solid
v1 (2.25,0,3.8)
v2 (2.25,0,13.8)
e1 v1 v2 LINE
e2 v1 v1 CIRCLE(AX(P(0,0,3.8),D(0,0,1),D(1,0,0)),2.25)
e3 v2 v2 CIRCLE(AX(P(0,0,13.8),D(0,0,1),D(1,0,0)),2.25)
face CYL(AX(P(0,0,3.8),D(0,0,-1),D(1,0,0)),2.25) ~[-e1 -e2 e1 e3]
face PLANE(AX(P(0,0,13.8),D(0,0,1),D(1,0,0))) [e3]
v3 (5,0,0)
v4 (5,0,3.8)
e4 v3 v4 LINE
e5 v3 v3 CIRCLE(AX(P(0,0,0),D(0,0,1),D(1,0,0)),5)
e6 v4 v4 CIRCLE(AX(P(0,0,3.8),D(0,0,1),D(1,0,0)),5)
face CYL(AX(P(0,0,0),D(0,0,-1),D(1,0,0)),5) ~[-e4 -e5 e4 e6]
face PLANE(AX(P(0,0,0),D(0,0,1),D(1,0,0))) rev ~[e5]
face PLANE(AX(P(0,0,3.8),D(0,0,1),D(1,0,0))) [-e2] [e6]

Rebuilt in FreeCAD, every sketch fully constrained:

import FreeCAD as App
import Part
import Sketcher

doc = App.newDocument("Part")
body = doc.addObject("PartDesign::Body", "Body")

# Sketch on XY plane
sketch1 = doc.addObject("Sketcher::SketchObject", "Sketch")
body.addObject(sketch1)
sketch1.AttachmentSupport = (doc.XY_Plane, [""])
sketch1.MapMode = "FlatFace"
sketch1.addGeometry(Part.Circle(App.Vector(0, 0, 0), App.Vector(0, 0, 1), 5), False)
sketch1.addConstraint(Sketcher.Constraint("Coincident", 0, 3, -1, 1))
sketch1.addConstraint(Sketcher.Constraint("Diameter", 0, 10.0))
pad1 = doc.addObject("PartDesign::Pad", "Pad")
body.addObject(pad1)
pad1.Profile = sketch1
pad1.Length = 3.8

# Sketch on XY plane
sketch2 = doc.addObject("Sketcher::SketchObject", "Sketch001")
body.addObject(sketch2)
sketch2.AttachmentSupport = (doc.XY_Plane, [""])
sketch2.MapMode = "FlatFace"
sketch2.AttachmentOffset = App.Placement(App.Vector(0, 0, 3.8), App.Rotation())
sketch2.addGeometry(Part.Circle(App.Vector(0, 0, 0), App.Vector(0, 0, 1), 2.2), False)
sketch2.addConstraint(Sketcher.Constraint("Coincident", 0, 3, -1, 1))
sketch2.addConstraint(Sketcher.Constraint("Diameter", 0, 4.5))
pad2 = doc.addObject("PartDesign::Pad", "Pad001")
body.addObject(pad2)
pad2.Profile = sketch2
pad2.Length = 10

doc.recompute()
